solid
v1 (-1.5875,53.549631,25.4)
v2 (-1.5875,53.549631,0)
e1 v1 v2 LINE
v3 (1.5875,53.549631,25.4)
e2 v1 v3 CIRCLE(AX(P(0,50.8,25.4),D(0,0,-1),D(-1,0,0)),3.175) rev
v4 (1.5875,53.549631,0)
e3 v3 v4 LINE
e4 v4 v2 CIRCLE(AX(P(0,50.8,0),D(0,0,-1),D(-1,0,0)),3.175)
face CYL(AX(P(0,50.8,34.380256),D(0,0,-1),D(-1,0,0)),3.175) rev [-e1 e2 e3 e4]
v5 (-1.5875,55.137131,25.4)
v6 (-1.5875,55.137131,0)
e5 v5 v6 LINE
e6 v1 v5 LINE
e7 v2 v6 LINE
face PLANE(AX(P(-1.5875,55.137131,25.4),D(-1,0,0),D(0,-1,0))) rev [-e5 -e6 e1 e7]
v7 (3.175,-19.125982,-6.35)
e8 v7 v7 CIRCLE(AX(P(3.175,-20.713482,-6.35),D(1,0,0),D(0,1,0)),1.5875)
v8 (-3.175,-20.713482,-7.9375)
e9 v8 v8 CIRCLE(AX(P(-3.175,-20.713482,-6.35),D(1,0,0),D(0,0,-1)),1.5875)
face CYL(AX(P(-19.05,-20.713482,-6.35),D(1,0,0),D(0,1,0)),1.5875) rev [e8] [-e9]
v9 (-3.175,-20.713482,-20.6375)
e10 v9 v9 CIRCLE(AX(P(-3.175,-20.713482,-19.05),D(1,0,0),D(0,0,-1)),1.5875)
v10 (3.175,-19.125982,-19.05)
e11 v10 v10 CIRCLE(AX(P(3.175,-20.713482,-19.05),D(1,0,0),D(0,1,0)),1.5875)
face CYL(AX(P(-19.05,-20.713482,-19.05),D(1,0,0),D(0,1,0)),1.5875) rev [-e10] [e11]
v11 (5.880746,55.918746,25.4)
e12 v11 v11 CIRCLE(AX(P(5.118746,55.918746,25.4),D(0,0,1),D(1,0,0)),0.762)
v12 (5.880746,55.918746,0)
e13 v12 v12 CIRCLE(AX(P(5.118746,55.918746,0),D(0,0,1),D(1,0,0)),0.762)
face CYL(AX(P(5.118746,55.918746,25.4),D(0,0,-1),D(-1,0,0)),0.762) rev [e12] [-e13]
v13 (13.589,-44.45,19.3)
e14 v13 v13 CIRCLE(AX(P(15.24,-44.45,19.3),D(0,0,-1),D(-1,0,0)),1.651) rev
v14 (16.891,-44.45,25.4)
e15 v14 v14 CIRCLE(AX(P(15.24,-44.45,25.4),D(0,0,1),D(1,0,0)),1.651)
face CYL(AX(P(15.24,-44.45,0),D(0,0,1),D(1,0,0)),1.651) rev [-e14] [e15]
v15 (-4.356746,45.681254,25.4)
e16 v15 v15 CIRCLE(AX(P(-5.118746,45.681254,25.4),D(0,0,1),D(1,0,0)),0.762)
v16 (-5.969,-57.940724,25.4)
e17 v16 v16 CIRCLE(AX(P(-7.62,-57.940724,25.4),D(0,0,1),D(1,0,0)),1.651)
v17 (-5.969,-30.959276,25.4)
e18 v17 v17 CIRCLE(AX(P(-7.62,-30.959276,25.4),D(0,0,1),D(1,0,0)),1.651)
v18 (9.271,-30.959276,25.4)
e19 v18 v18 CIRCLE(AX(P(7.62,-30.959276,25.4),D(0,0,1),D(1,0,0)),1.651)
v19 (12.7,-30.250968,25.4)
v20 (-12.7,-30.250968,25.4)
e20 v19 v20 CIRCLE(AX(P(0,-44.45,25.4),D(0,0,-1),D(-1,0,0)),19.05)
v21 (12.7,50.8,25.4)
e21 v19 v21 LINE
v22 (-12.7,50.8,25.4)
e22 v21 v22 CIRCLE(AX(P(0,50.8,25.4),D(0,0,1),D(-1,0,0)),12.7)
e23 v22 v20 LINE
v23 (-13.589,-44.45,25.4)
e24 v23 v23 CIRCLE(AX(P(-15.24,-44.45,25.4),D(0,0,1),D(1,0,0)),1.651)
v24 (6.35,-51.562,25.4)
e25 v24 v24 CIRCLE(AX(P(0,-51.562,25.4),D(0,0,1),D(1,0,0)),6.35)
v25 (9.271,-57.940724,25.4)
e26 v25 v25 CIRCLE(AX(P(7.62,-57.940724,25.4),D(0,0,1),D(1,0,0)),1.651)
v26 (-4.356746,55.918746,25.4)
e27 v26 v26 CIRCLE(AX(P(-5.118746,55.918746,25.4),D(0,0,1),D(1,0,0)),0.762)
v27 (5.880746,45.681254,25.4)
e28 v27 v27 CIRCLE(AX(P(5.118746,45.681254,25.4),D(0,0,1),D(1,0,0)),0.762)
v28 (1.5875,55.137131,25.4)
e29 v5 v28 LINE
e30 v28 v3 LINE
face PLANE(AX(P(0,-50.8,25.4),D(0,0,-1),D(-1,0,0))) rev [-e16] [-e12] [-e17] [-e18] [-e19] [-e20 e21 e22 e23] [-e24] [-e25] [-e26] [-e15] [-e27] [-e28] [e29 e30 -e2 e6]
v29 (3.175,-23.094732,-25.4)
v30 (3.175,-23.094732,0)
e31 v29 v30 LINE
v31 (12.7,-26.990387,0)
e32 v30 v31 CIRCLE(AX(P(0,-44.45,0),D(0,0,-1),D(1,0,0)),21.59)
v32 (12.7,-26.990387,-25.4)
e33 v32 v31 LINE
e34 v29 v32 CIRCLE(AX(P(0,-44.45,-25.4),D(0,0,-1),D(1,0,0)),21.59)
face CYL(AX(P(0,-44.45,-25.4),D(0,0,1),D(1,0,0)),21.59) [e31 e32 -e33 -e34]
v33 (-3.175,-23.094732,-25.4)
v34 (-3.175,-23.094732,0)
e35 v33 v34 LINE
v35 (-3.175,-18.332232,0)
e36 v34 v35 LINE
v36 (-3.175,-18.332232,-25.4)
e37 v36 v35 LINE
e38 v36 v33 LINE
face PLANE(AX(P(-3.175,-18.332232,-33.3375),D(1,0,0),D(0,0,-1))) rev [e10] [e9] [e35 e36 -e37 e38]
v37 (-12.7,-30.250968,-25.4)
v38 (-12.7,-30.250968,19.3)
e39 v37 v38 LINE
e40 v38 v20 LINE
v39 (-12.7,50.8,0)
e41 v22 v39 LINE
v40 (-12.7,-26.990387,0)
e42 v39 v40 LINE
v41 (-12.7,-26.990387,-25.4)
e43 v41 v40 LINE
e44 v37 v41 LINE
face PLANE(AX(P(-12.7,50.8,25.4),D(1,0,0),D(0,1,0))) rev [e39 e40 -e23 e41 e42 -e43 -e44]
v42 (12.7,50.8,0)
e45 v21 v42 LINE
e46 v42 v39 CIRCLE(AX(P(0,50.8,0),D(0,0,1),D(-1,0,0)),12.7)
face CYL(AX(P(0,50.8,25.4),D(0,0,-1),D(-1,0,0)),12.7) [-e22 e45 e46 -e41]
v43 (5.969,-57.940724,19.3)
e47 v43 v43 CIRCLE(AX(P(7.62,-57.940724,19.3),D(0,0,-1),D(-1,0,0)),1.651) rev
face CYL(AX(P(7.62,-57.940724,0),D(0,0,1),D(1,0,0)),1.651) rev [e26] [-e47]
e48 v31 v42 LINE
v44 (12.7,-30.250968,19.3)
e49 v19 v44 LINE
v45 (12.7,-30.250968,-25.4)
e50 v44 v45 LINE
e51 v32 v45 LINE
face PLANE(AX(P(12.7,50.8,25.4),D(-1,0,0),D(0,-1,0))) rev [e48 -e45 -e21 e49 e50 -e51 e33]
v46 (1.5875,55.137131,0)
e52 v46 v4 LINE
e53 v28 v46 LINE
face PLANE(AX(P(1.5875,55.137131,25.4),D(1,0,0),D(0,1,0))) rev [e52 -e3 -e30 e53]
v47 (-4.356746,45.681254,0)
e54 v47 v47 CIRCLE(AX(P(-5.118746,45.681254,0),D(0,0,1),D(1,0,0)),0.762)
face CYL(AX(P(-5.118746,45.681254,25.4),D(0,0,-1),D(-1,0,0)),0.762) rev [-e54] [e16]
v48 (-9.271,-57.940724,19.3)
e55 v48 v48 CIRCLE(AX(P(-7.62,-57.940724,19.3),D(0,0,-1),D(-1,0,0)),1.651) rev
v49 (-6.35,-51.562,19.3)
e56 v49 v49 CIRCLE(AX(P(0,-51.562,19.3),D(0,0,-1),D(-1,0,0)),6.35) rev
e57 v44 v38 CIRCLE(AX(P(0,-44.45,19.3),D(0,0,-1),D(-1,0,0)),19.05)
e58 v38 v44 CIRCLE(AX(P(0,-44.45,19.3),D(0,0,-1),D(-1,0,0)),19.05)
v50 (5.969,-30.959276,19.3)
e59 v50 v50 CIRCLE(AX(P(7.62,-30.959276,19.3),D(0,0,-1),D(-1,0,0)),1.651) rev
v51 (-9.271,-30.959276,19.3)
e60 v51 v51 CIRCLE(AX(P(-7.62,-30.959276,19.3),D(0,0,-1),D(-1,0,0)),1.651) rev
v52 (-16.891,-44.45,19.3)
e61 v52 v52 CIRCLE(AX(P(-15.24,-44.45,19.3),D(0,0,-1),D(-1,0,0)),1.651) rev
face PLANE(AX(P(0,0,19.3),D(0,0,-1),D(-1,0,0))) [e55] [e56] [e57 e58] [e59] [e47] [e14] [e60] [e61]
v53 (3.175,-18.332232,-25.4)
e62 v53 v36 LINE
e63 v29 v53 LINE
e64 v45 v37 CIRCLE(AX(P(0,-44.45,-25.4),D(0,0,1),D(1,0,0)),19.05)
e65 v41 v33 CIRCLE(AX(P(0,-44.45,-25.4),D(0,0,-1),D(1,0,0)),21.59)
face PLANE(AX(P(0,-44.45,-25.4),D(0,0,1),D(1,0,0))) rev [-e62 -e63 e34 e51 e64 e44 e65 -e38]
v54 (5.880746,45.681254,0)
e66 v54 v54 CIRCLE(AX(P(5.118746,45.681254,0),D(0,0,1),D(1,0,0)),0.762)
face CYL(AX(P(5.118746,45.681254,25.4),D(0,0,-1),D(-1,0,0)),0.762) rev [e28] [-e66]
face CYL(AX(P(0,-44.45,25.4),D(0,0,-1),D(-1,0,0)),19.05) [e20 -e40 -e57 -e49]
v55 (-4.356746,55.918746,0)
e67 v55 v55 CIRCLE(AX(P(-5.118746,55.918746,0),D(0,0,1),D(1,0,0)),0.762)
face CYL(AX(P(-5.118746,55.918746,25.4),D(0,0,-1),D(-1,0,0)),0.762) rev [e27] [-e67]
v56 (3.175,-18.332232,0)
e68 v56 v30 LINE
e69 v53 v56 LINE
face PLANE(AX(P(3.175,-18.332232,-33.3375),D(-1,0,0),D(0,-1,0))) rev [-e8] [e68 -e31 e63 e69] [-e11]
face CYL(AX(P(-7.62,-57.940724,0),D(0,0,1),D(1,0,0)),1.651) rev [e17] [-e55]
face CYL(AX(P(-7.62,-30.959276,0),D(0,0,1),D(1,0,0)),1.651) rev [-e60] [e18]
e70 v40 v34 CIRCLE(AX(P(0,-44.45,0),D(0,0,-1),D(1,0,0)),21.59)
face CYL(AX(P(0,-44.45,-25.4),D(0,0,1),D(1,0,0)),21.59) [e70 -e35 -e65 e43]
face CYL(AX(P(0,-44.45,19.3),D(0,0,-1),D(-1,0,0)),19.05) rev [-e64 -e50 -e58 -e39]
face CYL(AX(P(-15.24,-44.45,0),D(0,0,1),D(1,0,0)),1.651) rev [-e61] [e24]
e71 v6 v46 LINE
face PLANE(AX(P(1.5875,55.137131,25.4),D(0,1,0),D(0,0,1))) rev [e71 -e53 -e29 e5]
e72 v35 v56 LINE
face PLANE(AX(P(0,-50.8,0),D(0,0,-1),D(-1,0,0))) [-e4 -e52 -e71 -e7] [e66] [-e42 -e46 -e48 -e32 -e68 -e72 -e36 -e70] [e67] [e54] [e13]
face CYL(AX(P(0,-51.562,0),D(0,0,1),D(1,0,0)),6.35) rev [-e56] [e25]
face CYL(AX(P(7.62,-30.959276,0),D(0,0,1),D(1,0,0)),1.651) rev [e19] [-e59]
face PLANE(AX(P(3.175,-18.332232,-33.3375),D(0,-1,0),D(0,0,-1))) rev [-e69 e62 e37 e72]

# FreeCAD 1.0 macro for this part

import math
import FreeCAD as App
import Part
import Sketcher
from FreeCAD import Vector
Q = App.Units.Quantity


def add_polygon(sketch, points):
    """Adds a closed chain of lines whose ends are joined by coincident constraints."""
    first, n = sketch.GeometryCount, len(points)
    for a, b in zip(points, points[1:] + points[:1]):
        sketch.addGeometry(Part.LineSegment(App.Vector(*a, 0), App.Vector(*b, 0)), False)
    for i in range(n):
        sketch.addConstraint(Sketcher.Constraint("Coincident", first + i, 2, first + (i + 1) % n, 1))

doc = App.newDocument("Part")
body = doc.addObject("PartDesign::Body", "Body")

# Sketch on XY plane
sketch1 = body.newObject("Sketcher::SketchObject", "Sketch")
sketch1.AttachmentSupport = (doc.getObject("XY_Plane"), [""])
sketch1.MapMode = "FlatFace"
sketch1.addGeometry([
    Part.LineSegment(Vector(12.7, -50.8, 0), Vector(12.7, 50.8, 0)),  # 0
    Part.ArcOfCircle(Part.Circle(Vector(0, 50.8, 0), Vector(0, 0, 1), 12.7), math.radians(0), math.radians(180)),  # 1
    Part.LineSegment(Vector(-12.7, 50.8, 0), Vector(-12.7, -50.8, 0)),  # 2
    Part.ArcOfCircle(Part.Circle(Vector(0, -50.8, 0), Vector(0, 0, 1), 12.7), math.radians(180), math.radians(360)),  # 3
    Part.Circle(Vector(5.118746, 45.681254, 0), Vector(0, 0, 1), 0.762),  # 4
    Part.Circle(Vector(-5.118746, 45.681254, 0), Vector(0, 0, 1), 0.762),  # 5
    Part.Circle(Vector(0, 50.8, 0), Vector(0, 0, 1), 3.175),  # 6
    Part.Circle(Vector(5.118746, 55.918746, 0), Vector(0, 0, 1), 0.762),  # 7
    Part.Circle(Vector(-5.118746, 55.918746, 0), Vector(0, 0, 1), 0.762),  # 8
], False)
sketch1.addConstraint([
    Sketcher.Constraint("Tangent", 0, 2, 1, 1),
    Sketcher.Constraint("Tangent", 1, 2, 2, 1),
    Sketcher.Constraint("Tangent", 2, 2, 3, 1),
    Sketcher.Constraint("Tangent", 3, 2, 0, 1),
    Sketcher.Constraint("Vertical", 0),
    Sketcher.Constraint("Vertical", 2),
    Sketcher.Constraint("Coincident", 6, 3, 1, 3),
    Sketcher.Constraint("Equal", 4, 5),
    Sketcher.Constraint("Equal", 5, 7),
    Sketcher.Constraint("Equal", 7, 8),
    Sketcher.Constraint("Symmetric", 1, 3, 3, 3, -1, 1),
    Sketcher.Constraint("Symmetric", 4, 3, 5, 3, -2),
    Sketcher.Constraint("Symmetric", 7, 3, 8, 3, -2),
    Sketcher.Constraint("Vertical", 4, 3, 7, 3),
    Sketcher.Constraint("Radius", 1, Q("0.5 in")),
    Sketcher.Constraint("Diameter", 4, Q("0.06 in")),
    Sketcher.Constraint("Diameter", 6, Q("0.25 in")),
    Sketcher.Constraint("DistanceY", 0, 1, 0, 2, Q("4 in")),
    Sketcher.Constraint("DistanceX", 5, 3, 4, 3, Q("10.237492 mm")),
    Sketcher.Constraint("DistanceY", 4, 3, 7, 3, Q("10.237492 mm")),
    Sketcher.Constraint("DistanceY", -1, 1, 4, 3, Q("45.681254 mm")),
])
pad1 = body.newObject("PartDesign::Pad", "Pad")
pad1.Profile = sketch1
pad1.Length = Q("1 in")

# Sketch on XY plane
sketch2 = body.newObject("Sketcher::SketchObject", "Sketch001")
sketch2.AttachmentSupport = (doc.getObject("XY_Plane"), [""])
sketch2.MapMode = "FlatFace"
sketch2.addGeometry([
    Part.Circle(Vector(0, -44.45, 0), Vector(0, 0, 1), 19.05),
    Part.Circle(Vector(0, 50.8, 0), Vector(0, 0, 1), 3.175),
], False)
sketch2.addConstraint([
    Sketcher.Constraint("PointOnObject", 0, 3, -2),
    Sketcher.Constraint("PointOnObject", 1, 3, -2),
    Sketcher.Constraint("Diameter", 0, Q("1.5 in")),
    Sketcher.Constraint("Diameter", 1, Q("0.25 in")),
    Sketcher.Constraint("DistanceY", -1, 1, 1, 3, Q("2 in")),
    Sketcher.Constraint("DistanceY", 0, 3, -1, 1, Q("1.75 in")),
])
pad2 = body.newObject("PartDesign::Pad", "Pad001")
pad2.Profile = sketch2
pad2.Length = Q("1 in")

# Sketch on XY plane
sketch3 = body.newObject("Sketcher::SketchObject", "Sketch002")
sketch3.AttachmentSupport = (doc.getObject("XY_Plane"), [""])
sketch3.MapMode = "FlatFace"
sketch3.AttachmentOffset = App.Placement(Vector(0, 0, 1 * 25.4), App.Rotation())
sketch3.addGeometry([
    Part.Circle(Vector(-7.62, -30.959276, 0), Vector(0, 0, 1), 1.651),  # 0
    Part.Circle(Vector(7.62, -30.959276, 0), Vector(0, 0, 1), 1.651),  # 1
    Part.Circle(Vector(-15.24, -44.45, 0), Vector(0, 0, 1), 1.651),  # 2
    Part.Circle(Vector(-7.62, -57.940724, 0), Vector(0, 0, 1), 1.651),  # 3
    Part.Circle(Vector(7.62, -57.940724, 0), Vector(0, 0, 1), 1.651),  # 4
    Part.Circle(Vector(15.24, -44.45, 0), Vector(0, 0, 1), 1.651),  # 5
], False)
sketch3.addConstraint([
    Sketcher.Constraint("Equal", 0, 1),
    Sketcher.Constraint("Equal", 1, 2),
    Sketcher.Constraint("Equal", 2, 3),
    Sketcher.Constraint("Equal", 3, 4),
    Sketcher.Constraint("Equal", 4, 5),
    Sketcher.Constraint("Symmetric", 0, 3, 1, 3, -2),
    Sketcher.Constraint("Symmetric", 3, 3, 4, 3, -2),
    Sketcher.Constraint("Symmetric", 2, 3, 5, 3, -2),
    Sketcher.Constraint("Vertical", 0, 3, 3, 3),
    Sketcher.Constraint("Diameter", 0, Q("0.13 in")),
    Sketcher.Constraint("DistanceX", 0, 3, -1, 1, Q("0.3 in")),
    Sketcher.Constraint("DistanceX", 2, 3, -1, 1, Q("0.6 in")),
    Sketcher.Constraint("DistanceY", 2, 3, -1, 1, Q("1.75 in")),
    Sketcher.Constraint("DistanceY", 3, 3, 0, 3, Q("26.981448 mm")),
    Sketcher.Constraint("DistanceY", 0, 3, -1, 1, Q("30.959276 mm")),
])
pocket1 = body.newObject("PartDesign::Pocket", "Pocket")
pocket1.Profile = sketch3
pocket1.Length = Q("1 in")

# Sketch on XY plane
sketch4 = body.newObject("Sketcher::SketchObject", "Sketch003")
sketch4.AttachmentSupport = (doc.getObject("XY_Plane"), [""])
sketch4.MapMode = "FlatFace"
sketch4.AttachmentOffset = App.Placement(Vector(0, 0, 1 * 25.4), App.Rotation())
sketch4.addGeometry(Part.Circle(Vector(0, -51.562, 0), Vector(0, 0, 1), 6.35), False)
sketch4.addConstraint([
    Sketcher.Constraint("PointOnObject", 0, 3, -2),
    Sketcher.Constraint("Diameter", 0, Q("0.5 in")),
    Sketcher.Constraint("DistanceY", 0, 3, -1, 1, Q("2.03 in")),
])
pocket2 = body.newObject("PartDesign::Pocket", "Pocket001")
pocket2.Profile = sketch4
pocket2.Length = Q("1 in")

# Sketch on XY plane
sketch5 = body.newObject("Sketcher::SketchObject", "Sketch004")
sketch5.AttachmentSupport = (doc.getObject("XY_Plane"), [""])
sketch5.MapMode = "FlatFace"
add_polygon(sketch5, [(1.5875, 55.137131), (1.5875, 53.549631), (-1.5875, 53.549631), (-1.5875, 55.137131)])  # lines 0-3
sketch5.addConstraint([
    Sketcher.Constraint("Vertical", 0),
    Sketcher.Constraint("Horizontal", 1),
    Sketcher.Constraint("Vertical", 2),
    Sketcher.Constraint("Horizontal", 3),
    Sketcher.Constraint("DistanceX", 1, 2, 1, 1, Q("0.125 in")),
    Sketcher.Constraint("DistanceY", 0, 2, 0, 1, Q("0.0625 in")),
    Sketcher.Constraint("DistanceX", -1, 1, 0, 2, Q("0.0625 in")),
    Sketcher.Constraint("DistanceY", -1, 1, 0, 2, Q("53.549631 mm")),
])
pocket3 = body.newObject("PartDesign::Pocket", "Pocket002")
pocket3.Profile = sketch5
pocket3.Length = Q("1 in")
pocket3.Reversed = True

# Sketch on XY plane
sketch6 = body.newObject("Sketcher::SketchObject", "Sketch005")
sketch6.AttachmentSupport = (doc.getObject("XY_Plane"), [""])
sketch6.MapMode = "FlatFace"
sketch6.addGeometry(Part.Circle(Vector(0, 50.8, 0), Vector(0, 0, 1), 3.175), False)
sketch6.addConstraint([
    Sketcher.Constraint("PointOnObject", 0, 3, -2),
    Sketcher.Constraint("Diameter", 0, Q("0.25 in")),
    Sketcher.Constraint("DistanceY", -1, 1, 0, 3, Q("2 in")),
])
pocket4 = body.newObject("PartDesign::Pocket", "Pocket003")
pocket4.Profile = sketch6
pocket4.Length = Q("1 in")
pocket4.Reversed = True

# Sketch on XY plane
sketch7 = body.newObject("Sketcher::SketchObject", "Sketch006")
sketch7.AttachmentSupport = (doc.getObject("XY_Plane"), [""])
sketch7.MapMode = "FlatFace"
sketch7.addGeometry([
    Part.ArcOfCircle(Part.Circle(Vector(0, -44.45, 0), Vector(0, 0, 1), 19.05), math.radians(180), math.radians(408.189685)),
    Part.ArcOfCircle(Part.Circle(Vector(0, -44.45, 0), Vector(0, 0, 1), 19.05), math.radians(131.810315), math.radians(180)),
    Part.ArcOfCircle(Part.Circle(Vector(0, -44.45, 0), Vector(0, 0, 1), 19.05), math.radians(48.189685), math.radians(131.810315)),
], False)
sketch7.addConstraint([
    Sketcher.Constraint("Tangent", 0, 1, 1, 2),
    Sketcher.Constraint("Tangent", 1, 1, 2, 2),
    Sketcher.Constraint("Tangent", 2, 1, 0, 2),
    Sketcher.Constraint("Symmetric", 1, 1, 2, 1, -2),
    Sketcher.Constraint("Horizontal", 2, 3, 0, 1),
    Sketcher.Constraint("Radius", 0, Q("0.75 in")),
    Sketcher.Constraint("DistanceX", 1, 1, 2, 1, Q("1 in")),
    Sketcher.Constraint("DistanceY", 0, 3, -1, 1, Q("1.75 in")),
])
pocket5 = body.newObject("PartDesign::Pocket", "Pocket004")
pocket5.Profile = sketch7
pocket5.Length = 19.3
pocket5.Reversed = True

# Sketch on XY plane
sketch8 = body.newObject("Sketcher::SketchObject", "Sketch007")
sketch8.AttachmentSupport = (doc.getObject("XY_Plane"), [""])
sketch8.MapMode = "FlatFace"
sketch8.addGeometry([
    Part.LineSegment(Vector(12.7, -26.990387, 0), Vector(12.7, -30.250968, 0)),
    Part.ArcOfCircle(Part.Circle(Vector(0, -44.45, 0), Vector(0, 0, 1), 19.05), math.radians(48.189685), math.radians(131.810315)),
    Part.LineSegment(Vector(-12.7, -30.250968, 0), Vector(-12.7, -26.990387, 0)),
    Part.ArcOfCircle(Part.Circle(Vector(0, -44.45, 0), Vector(0, 0, 1), 21.59), math.radians(53.968121), math.radians(126.031879)),
], False)
sketch8.addConstraint([
    Sketcher.Constraint("Coincident", 0, 2, 1, 1),
    Sketcher.Constraint("Coincident", 1, 2, 2, 1),
    Sketcher.Constraint("Coincident", 2, 2, 3, 2),
    Sketcher.Constraint("Coincident", 3, 1, 0, 1),
    Sketcher.Constraint("Vertical", 0),
    Sketcher.Constraint("Vertical", 2),
    Sketcher.Constraint("Coincident", 3, 3, 1, 3),
    Sketcher.Constraint("Symmetric", 0, 2, 1, 2, -2),
    Sketcher.Constraint("Radius", 1, Q("0.75 in")),
    Sketcher.Constraint("Radius", 3, Q("0.85 in")),
    Sketcher.Constraint("DistanceX", 1, 2, 0, 2, Q("1 in")),
    Sketcher.Constraint("DistanceY", 1, 3, -1, 1, Q("1.75 in")),
])
pad3 = body.newObject("PartDesign::Pad", "Pad002")
pad3.Profile = sketch8
pad3.Length = Q("1 in")
pad3.Reversed = True

# Sketch on XY plane
sketch9 = body.newObject("Sketcher::SketchObject", "Sketch008")
sketch9.AttachmentSupport = (doc.getObject("XY_Plane"), [""])
sketch9.MapMode = "FlatFace"
add_polygon(sketch9, [(3.175, -18.332232), (3.175, -23.094732), (-3.175, -23.094732), (-3.175, -18.332232)])  # lines 0-3
sketch9.addConstraint([
    Sketcher.Constraint("Vertical", 0),
    Sketcher.Constraint("Horizontal", 1),
    Sketcher.Constraint("Vertical", 2),
    Sketcher.Constraint("Horizontal", 3),
    Sketcher.Constraint("DistanceX", 1, 2, 1, 1, Q("0.25 in")),
    Sketcher.Constraint("DistanceY", 0, 2, 0, 1, Q("0.1875 in")),
    Sketcher.Constraint("DistanceX", -1, 1, 0, 2, Q("0.125 in")),
    Sketcher.Constraint("DistanceY", 0, 2, -1, 1, Q("23.094732 mm")),
])
pad4 = body.newObject("PartDesign::Pad", "Pad003")
pad4.Profile = sketch9
pad4.Length = Q("1 in")
pad4.Reversed = True

# Sketch on YZ plane
sketch10 = body.newObject("Sketcher::SketchObject", "Sketch009")
sketch10.AttachmentSupport = (doc.getObject("YZ_Plane"), [""])
sketch10.MapMode = "FlatFace"
sketch10.AttachmentOffset = App.Placement(Vector(0, 0, 0.125 * 25.4), App.Rotation())
sketch10.addGeometry([
    Part.Circle(Vector(-20.713482, -6.35, 0), Vector(0, 0, 1), 1.5875),
    Part.Circle(Vector(-20.713482, -19.05, 0), Vector(0, 0, 1), 1.5875),
], False)
sketch10.addConstraint([
    Sketcher.Constraint("Equal", 0, 1),
    Sketcher.Constraint("Vertical", 0, 3, 1, 3),
    Sketcher.Constraint("Diameter", 0, Q("0.125 in")),
    Sketcher.Constraint("DistanceY", 1, 3, 0, 3, Q("0.5 in")),
    Sketcher.Constraint("DistanceY", 0, 3, -1, 1, Q("0.25 in")),
    Sketcher.Constraint("DistanceX", 0, 3, -1, 1, Q("20.713482 mm")),
])
pocket6 = body.newObject("PartDesign::Pocket", "Pocket005")
pocket6.Profile = sketch10
pocket6.Type = "ThroughAll"

doc.recompute()
